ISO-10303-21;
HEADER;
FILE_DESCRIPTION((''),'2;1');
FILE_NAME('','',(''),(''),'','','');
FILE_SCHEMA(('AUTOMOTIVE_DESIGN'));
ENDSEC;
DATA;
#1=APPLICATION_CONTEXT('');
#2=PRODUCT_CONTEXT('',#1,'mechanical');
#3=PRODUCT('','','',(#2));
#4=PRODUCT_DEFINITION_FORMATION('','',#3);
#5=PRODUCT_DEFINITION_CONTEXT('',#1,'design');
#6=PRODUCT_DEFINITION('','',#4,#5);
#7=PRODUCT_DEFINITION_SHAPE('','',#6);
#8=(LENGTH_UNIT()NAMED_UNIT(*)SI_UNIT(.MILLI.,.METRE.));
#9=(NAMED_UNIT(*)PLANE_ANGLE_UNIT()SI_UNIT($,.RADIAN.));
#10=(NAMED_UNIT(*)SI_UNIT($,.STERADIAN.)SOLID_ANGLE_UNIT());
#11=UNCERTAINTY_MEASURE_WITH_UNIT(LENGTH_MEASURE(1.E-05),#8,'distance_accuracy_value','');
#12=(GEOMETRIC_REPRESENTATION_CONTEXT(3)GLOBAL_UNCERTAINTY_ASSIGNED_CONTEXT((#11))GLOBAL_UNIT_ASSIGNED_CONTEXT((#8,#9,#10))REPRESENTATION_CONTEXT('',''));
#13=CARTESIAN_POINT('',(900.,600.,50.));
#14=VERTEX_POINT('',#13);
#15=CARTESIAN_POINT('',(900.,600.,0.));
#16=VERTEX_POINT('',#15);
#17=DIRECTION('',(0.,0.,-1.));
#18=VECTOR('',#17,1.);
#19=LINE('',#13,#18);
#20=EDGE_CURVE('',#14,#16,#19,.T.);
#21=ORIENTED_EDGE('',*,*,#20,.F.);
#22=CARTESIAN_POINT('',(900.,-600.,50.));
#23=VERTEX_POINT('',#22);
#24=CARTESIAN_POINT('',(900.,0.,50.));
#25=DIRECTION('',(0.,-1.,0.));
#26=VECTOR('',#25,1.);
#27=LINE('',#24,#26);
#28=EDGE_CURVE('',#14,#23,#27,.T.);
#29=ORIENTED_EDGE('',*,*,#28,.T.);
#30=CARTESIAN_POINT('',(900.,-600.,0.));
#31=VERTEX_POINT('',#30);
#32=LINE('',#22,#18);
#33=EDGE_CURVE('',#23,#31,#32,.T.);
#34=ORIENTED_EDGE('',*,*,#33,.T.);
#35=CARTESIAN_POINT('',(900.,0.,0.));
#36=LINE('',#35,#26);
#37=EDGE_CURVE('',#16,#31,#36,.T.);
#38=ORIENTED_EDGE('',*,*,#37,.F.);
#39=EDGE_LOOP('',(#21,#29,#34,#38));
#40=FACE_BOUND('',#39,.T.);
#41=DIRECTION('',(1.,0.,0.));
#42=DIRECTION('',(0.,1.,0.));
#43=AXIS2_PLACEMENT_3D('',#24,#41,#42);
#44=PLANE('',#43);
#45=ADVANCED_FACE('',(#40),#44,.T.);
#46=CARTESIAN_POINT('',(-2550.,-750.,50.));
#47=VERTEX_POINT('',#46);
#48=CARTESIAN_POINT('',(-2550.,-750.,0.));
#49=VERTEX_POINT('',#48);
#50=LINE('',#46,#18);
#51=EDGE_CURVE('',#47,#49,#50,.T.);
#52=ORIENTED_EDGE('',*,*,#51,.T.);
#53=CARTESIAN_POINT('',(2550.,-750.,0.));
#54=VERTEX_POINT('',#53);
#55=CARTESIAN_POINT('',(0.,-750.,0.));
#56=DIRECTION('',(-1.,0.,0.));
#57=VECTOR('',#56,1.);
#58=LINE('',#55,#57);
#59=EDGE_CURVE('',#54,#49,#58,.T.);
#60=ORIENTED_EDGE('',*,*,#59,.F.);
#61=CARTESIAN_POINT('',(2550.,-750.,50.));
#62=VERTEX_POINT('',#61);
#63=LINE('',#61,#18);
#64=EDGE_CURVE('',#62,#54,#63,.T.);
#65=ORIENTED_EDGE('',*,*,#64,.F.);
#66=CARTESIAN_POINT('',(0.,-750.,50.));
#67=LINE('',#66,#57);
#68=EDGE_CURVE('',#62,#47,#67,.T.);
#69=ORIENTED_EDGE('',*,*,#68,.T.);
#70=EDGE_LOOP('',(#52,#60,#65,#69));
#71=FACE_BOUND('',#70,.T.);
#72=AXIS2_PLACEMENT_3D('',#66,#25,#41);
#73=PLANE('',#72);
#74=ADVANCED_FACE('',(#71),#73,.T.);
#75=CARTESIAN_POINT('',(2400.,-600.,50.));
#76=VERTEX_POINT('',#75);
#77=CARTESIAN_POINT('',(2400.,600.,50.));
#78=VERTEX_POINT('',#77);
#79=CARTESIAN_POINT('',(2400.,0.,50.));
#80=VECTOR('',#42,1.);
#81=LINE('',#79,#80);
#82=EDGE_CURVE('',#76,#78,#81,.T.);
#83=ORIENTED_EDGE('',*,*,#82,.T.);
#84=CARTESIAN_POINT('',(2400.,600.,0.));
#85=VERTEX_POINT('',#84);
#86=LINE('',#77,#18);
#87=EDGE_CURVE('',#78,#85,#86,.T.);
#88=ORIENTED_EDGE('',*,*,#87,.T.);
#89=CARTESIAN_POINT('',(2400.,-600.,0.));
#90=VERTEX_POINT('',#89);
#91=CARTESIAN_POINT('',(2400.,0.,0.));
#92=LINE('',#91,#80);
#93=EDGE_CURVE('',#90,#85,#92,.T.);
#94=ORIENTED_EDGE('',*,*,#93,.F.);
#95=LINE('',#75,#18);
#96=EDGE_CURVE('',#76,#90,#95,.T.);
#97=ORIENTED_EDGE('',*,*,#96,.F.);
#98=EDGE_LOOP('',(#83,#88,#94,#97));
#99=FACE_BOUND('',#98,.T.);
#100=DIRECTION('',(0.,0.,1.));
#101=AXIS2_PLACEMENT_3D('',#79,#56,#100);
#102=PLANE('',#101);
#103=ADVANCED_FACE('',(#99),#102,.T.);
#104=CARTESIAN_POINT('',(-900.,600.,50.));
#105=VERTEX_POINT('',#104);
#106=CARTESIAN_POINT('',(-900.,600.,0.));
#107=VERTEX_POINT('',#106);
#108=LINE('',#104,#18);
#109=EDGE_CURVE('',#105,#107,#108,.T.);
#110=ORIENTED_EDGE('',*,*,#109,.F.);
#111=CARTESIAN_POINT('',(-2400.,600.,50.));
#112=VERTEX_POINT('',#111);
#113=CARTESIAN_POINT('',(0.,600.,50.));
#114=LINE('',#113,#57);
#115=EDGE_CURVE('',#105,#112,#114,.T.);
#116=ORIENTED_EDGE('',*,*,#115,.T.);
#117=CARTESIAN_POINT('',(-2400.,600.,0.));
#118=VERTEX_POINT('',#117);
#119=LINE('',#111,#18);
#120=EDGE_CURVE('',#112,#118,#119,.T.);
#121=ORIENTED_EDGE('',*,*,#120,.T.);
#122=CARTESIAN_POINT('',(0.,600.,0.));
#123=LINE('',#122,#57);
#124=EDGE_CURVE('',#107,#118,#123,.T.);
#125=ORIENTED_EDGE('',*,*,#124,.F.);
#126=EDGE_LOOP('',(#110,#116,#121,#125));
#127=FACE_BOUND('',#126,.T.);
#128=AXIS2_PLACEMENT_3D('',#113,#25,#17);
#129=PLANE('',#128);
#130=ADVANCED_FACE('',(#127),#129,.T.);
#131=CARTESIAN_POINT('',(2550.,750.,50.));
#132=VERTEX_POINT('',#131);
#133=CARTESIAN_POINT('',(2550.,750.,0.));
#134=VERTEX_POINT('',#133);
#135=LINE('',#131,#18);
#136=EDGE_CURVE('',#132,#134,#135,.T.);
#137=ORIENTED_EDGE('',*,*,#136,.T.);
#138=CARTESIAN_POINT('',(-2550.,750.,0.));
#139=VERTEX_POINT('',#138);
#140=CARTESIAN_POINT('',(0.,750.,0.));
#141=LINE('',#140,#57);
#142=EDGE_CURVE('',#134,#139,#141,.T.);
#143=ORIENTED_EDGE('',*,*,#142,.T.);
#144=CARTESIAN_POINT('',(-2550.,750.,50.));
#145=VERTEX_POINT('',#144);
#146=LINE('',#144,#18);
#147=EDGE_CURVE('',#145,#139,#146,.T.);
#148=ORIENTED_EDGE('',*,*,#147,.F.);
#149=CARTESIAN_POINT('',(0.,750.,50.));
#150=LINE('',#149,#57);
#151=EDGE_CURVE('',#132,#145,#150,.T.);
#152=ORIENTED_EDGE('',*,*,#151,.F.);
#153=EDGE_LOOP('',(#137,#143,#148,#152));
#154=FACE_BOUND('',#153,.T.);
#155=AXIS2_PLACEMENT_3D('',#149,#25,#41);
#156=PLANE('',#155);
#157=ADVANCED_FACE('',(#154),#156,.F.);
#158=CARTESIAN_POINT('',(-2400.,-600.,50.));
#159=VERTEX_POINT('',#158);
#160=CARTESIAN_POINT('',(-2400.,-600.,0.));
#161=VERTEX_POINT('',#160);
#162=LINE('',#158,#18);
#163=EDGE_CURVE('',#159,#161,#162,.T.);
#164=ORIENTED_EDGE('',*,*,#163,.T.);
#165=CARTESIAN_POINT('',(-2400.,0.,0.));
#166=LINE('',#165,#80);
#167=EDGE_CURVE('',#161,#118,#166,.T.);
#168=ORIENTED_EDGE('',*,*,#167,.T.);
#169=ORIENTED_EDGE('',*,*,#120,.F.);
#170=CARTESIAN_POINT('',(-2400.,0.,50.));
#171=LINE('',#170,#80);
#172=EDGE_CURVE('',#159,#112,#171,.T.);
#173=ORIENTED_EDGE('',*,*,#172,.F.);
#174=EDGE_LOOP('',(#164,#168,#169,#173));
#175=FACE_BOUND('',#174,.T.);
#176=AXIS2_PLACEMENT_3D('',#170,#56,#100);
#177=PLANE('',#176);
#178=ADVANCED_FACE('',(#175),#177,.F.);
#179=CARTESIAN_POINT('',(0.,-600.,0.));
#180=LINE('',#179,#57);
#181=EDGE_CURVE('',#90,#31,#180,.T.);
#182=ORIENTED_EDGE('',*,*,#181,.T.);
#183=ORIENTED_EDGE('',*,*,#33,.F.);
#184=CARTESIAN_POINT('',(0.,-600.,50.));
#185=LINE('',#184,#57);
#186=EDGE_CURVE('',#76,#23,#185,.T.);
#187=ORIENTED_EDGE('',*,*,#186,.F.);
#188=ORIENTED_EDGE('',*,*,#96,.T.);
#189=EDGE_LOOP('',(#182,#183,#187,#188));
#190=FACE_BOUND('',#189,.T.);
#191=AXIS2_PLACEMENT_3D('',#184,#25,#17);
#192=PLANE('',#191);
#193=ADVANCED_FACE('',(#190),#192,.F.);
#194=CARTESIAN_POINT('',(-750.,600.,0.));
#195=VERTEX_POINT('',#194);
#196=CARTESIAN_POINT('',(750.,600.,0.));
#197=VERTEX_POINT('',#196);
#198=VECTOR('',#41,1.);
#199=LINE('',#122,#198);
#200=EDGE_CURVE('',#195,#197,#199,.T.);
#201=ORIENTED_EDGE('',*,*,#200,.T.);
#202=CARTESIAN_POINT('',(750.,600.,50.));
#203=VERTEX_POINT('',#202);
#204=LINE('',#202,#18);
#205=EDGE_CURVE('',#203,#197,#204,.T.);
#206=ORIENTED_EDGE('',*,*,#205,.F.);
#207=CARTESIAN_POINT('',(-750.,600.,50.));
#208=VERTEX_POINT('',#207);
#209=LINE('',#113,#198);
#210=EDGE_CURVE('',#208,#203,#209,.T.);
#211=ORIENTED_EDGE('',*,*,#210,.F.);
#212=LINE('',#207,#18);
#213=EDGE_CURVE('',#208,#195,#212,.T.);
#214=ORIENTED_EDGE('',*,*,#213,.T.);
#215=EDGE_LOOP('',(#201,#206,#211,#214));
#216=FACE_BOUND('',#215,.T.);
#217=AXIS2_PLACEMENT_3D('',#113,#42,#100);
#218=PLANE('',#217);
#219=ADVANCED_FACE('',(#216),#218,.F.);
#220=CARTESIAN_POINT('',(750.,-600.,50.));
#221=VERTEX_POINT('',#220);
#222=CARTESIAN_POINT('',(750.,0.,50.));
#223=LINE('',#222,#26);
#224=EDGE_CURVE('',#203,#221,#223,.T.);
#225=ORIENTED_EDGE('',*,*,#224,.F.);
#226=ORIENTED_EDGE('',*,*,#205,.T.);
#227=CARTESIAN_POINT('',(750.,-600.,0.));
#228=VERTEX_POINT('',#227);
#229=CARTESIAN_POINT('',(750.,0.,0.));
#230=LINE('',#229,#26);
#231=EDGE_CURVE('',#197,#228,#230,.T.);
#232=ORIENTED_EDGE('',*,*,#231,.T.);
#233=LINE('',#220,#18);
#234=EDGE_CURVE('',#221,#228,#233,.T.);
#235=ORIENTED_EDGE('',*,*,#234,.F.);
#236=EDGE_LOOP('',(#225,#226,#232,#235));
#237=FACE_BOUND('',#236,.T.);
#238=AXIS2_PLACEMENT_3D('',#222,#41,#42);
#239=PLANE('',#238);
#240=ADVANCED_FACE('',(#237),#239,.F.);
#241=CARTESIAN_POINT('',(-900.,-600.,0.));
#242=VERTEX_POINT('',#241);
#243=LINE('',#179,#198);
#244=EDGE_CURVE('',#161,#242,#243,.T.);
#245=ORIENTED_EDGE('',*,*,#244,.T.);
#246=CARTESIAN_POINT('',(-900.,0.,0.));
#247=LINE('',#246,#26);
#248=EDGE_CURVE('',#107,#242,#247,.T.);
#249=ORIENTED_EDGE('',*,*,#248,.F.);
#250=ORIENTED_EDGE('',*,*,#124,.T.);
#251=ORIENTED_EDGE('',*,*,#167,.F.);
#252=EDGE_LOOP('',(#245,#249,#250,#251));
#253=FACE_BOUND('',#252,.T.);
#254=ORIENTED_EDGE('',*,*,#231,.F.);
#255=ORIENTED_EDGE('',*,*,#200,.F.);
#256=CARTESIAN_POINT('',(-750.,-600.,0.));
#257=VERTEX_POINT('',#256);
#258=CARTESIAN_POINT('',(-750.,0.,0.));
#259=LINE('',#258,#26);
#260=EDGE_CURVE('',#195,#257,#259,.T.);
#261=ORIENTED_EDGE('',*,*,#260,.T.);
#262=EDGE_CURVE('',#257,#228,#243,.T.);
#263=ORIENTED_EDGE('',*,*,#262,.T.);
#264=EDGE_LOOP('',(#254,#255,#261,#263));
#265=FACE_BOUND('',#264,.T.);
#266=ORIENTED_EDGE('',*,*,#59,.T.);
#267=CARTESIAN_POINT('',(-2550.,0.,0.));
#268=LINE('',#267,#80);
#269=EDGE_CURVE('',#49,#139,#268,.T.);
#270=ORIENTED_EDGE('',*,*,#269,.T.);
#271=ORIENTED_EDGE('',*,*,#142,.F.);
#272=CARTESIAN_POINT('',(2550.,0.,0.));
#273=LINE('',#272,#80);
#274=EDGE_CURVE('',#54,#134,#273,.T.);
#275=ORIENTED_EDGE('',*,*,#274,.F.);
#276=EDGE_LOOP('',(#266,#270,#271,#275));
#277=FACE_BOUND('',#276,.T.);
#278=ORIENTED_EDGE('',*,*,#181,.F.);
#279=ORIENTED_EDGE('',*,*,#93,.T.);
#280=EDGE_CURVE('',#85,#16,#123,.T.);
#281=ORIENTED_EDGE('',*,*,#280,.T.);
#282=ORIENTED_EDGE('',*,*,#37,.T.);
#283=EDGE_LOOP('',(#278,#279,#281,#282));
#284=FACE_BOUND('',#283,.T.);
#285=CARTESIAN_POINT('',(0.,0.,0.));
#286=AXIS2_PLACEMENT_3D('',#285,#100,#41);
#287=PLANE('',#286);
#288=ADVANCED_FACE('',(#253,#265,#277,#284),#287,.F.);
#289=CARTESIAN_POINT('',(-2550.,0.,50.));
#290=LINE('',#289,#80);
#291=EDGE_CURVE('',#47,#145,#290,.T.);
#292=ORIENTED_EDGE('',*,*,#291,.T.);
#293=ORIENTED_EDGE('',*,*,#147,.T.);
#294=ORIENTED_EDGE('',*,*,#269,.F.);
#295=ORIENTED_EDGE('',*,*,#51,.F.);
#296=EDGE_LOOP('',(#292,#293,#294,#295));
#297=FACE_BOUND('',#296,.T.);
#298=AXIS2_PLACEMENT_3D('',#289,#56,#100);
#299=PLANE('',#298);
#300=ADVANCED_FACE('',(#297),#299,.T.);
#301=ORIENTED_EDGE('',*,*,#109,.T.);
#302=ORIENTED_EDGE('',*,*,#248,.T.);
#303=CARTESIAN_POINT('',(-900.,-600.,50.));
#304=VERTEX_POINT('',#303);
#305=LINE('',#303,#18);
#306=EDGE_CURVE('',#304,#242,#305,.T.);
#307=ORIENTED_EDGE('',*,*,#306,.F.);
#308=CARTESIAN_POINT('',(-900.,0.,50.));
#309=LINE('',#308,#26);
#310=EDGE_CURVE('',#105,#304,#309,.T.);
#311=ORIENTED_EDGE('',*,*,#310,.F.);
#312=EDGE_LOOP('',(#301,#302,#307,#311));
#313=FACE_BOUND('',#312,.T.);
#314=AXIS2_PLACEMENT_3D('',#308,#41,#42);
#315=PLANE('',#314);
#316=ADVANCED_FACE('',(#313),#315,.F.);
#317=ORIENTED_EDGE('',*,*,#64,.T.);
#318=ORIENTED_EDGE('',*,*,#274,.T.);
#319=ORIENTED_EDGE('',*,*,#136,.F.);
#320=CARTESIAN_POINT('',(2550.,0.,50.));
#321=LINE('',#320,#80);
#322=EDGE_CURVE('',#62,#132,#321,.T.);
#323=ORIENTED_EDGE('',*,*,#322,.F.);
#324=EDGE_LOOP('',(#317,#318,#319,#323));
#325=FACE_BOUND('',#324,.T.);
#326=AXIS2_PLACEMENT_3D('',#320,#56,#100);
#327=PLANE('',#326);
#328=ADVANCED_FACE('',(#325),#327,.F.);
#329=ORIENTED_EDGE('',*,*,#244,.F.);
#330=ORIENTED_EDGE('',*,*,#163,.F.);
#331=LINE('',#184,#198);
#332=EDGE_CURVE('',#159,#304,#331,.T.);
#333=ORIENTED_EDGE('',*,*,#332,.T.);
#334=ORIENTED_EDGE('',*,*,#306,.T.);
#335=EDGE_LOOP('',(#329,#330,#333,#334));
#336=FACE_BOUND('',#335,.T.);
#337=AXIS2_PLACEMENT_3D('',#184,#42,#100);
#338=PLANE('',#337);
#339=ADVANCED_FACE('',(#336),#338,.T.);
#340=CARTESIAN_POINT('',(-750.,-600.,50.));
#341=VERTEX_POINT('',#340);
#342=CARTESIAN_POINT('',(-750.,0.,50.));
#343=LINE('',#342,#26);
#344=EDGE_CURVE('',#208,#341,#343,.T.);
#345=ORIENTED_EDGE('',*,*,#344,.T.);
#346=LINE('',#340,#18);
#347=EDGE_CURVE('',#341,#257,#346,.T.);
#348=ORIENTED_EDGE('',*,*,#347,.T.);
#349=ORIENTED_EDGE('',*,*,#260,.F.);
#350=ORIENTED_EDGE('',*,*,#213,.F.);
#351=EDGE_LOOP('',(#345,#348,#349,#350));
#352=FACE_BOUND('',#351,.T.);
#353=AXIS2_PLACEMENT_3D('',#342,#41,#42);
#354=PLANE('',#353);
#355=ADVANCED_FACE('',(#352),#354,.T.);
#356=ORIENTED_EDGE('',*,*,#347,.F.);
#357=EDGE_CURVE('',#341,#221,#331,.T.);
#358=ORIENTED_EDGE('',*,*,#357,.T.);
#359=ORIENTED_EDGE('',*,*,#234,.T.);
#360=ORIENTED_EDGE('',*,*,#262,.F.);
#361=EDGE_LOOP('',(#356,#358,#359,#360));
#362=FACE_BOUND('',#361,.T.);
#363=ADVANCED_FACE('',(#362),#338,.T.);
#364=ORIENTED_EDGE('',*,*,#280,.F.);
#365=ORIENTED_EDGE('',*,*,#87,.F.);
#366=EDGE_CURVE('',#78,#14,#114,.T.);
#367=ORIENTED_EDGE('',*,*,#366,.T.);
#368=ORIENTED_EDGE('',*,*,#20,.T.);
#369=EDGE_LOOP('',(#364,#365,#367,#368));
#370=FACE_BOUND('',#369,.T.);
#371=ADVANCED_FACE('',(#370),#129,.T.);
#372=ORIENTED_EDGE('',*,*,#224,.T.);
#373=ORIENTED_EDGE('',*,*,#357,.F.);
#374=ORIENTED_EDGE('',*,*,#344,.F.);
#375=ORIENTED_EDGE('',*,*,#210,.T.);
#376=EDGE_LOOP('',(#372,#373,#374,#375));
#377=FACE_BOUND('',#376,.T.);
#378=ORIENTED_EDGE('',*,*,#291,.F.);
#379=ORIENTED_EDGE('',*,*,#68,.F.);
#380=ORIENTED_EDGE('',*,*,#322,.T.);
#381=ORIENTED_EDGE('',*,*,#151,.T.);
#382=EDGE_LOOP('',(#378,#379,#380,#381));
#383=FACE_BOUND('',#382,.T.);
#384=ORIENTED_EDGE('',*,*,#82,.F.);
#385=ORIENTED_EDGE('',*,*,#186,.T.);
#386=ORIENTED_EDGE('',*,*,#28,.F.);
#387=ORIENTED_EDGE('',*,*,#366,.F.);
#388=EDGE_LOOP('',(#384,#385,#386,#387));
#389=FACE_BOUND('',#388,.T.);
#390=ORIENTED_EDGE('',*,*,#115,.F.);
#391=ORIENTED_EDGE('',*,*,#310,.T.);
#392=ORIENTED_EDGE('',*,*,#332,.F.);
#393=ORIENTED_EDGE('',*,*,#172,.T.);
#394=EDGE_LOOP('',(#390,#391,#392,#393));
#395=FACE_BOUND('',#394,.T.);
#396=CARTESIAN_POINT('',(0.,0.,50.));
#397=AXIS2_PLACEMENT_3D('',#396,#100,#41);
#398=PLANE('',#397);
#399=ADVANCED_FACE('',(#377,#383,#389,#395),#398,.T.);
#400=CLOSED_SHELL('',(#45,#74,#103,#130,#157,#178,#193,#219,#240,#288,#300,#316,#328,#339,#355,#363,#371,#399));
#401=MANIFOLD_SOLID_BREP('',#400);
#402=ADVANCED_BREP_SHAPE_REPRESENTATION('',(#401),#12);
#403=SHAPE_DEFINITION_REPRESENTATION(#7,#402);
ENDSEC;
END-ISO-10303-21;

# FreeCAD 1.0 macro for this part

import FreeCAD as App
import Part
import Sketcher

V = App.Vector
Q = App.Units.Quantity


def add_polygon(sketch, points):
    """Adds a closed chain of lines whose ends are joined by coincident constraints."""
    first, n = sketch.GeometryCount, len(points)
    for a, b in zip(points, points[1:] + points[:1]):
        sketch.addGeometry(Part.LineSegment(App.Vector(*a, 0), App.Vector(*b, 0)), False)
    for i in range(n):
        sketch.addConstraint(Sketcher.Constraint("Coincident", first + i, 2, first + (i + 1) % n, 1))

doc = App.newDocument("Part")
body = doc.addObject("PartDesign::Body", "Body")

sketch1 = body.newObject("Sketcher::SketchObject", "Sketch")
sketch1.AttachmentSupport = (doc.getObject("XY_Plane"), [""])
sketch1.MapMode = "FlatFace"
add_polygon(sketch1, [(-2550, 750), (-2550, -750), (2550, -750), (2550, 750)])
add_polygon(sketch1, [(-900, -600), (-2400, -600), (-2400, 600), (-900, 600)])
add_polygon(sketch1, [(750, -600), (-750, -600), (-750, 600), (750, 600)])
add_polygon(sketch1, [(2400, -600), (900, -600), (900, 600), (2400, 600)])
sketch1.addConstraint([
    Sketcher.Constraint("Vertical", 0),
    Sketcher.Constraint("Horizontal", 1),
    Sketcher.Constraint("Vertical", 2),
    Sketcher.Constraint("Horizontal", 3),
    Sketcher.Constraint("Horizontal", 4),
    Sketcher.Constraint("Vertical", 5),
    Sketcher.Constraint("Horizontal", 6),
    Sketcher.Constraint("Vertical", 7),
    Sketcher.Constraint("Horizontal", 8),
    Sketcher.Constraint("Vertical", 9),
    Sketcher.Constraint("Horizontal", 10),
    Sketcher.Constraint("Vertical", 11),
    Sketcher.Constraint("Horizontal", 12),
    Sketcher.Constraint("Vertical", 13),
    Sketcher.Constraint("Horizontal", 14),
    Sketcher.Constraint("Vertical", 15),
    Sketcher.Constraint("Symmetric", 0, 2, 2, 2, -1, 1),
    Sketcher.Constraint("Symmetric", 8, 2, 10, 2, -1, 1),
    Sketcher.Constraint("Symmetric", 6, 2, 12, 2, -1, 1),
    Sketcher.Constraint("Symmetric", 4, 2, 14, 2, -1, 1),
    Sketcher.Constraint("Horizontal", 7, 2, 8, 2),
    Sketcher.Constraint("Horizontal", 6, 2, 9, 2),
    Sketcher.Constraint("Equal", 6, 8),
    Sketcher.Constraint("Equal", 14, 0),
    Sketcher.Constraint("DistanceX", 1, 1, 1, 2, Q("5100 mm")),
    Sketcher.Constraint("DistanceX", 4, 2, 4, 1, Q("1500 mm")),
    Sketcher.Constraint("DistanceY", 5, 1, 5, 2, Q("1200 mm")),
    Sketcher.Constraint("DistanceX", 4, 2, -1, 1, Q("2400 mm")),
])
pad1 = body.newObject("PartDesign::Pad", "Pad")
pad1.Profile = sketch1
pad1.Length = 50

doc.recompute()
